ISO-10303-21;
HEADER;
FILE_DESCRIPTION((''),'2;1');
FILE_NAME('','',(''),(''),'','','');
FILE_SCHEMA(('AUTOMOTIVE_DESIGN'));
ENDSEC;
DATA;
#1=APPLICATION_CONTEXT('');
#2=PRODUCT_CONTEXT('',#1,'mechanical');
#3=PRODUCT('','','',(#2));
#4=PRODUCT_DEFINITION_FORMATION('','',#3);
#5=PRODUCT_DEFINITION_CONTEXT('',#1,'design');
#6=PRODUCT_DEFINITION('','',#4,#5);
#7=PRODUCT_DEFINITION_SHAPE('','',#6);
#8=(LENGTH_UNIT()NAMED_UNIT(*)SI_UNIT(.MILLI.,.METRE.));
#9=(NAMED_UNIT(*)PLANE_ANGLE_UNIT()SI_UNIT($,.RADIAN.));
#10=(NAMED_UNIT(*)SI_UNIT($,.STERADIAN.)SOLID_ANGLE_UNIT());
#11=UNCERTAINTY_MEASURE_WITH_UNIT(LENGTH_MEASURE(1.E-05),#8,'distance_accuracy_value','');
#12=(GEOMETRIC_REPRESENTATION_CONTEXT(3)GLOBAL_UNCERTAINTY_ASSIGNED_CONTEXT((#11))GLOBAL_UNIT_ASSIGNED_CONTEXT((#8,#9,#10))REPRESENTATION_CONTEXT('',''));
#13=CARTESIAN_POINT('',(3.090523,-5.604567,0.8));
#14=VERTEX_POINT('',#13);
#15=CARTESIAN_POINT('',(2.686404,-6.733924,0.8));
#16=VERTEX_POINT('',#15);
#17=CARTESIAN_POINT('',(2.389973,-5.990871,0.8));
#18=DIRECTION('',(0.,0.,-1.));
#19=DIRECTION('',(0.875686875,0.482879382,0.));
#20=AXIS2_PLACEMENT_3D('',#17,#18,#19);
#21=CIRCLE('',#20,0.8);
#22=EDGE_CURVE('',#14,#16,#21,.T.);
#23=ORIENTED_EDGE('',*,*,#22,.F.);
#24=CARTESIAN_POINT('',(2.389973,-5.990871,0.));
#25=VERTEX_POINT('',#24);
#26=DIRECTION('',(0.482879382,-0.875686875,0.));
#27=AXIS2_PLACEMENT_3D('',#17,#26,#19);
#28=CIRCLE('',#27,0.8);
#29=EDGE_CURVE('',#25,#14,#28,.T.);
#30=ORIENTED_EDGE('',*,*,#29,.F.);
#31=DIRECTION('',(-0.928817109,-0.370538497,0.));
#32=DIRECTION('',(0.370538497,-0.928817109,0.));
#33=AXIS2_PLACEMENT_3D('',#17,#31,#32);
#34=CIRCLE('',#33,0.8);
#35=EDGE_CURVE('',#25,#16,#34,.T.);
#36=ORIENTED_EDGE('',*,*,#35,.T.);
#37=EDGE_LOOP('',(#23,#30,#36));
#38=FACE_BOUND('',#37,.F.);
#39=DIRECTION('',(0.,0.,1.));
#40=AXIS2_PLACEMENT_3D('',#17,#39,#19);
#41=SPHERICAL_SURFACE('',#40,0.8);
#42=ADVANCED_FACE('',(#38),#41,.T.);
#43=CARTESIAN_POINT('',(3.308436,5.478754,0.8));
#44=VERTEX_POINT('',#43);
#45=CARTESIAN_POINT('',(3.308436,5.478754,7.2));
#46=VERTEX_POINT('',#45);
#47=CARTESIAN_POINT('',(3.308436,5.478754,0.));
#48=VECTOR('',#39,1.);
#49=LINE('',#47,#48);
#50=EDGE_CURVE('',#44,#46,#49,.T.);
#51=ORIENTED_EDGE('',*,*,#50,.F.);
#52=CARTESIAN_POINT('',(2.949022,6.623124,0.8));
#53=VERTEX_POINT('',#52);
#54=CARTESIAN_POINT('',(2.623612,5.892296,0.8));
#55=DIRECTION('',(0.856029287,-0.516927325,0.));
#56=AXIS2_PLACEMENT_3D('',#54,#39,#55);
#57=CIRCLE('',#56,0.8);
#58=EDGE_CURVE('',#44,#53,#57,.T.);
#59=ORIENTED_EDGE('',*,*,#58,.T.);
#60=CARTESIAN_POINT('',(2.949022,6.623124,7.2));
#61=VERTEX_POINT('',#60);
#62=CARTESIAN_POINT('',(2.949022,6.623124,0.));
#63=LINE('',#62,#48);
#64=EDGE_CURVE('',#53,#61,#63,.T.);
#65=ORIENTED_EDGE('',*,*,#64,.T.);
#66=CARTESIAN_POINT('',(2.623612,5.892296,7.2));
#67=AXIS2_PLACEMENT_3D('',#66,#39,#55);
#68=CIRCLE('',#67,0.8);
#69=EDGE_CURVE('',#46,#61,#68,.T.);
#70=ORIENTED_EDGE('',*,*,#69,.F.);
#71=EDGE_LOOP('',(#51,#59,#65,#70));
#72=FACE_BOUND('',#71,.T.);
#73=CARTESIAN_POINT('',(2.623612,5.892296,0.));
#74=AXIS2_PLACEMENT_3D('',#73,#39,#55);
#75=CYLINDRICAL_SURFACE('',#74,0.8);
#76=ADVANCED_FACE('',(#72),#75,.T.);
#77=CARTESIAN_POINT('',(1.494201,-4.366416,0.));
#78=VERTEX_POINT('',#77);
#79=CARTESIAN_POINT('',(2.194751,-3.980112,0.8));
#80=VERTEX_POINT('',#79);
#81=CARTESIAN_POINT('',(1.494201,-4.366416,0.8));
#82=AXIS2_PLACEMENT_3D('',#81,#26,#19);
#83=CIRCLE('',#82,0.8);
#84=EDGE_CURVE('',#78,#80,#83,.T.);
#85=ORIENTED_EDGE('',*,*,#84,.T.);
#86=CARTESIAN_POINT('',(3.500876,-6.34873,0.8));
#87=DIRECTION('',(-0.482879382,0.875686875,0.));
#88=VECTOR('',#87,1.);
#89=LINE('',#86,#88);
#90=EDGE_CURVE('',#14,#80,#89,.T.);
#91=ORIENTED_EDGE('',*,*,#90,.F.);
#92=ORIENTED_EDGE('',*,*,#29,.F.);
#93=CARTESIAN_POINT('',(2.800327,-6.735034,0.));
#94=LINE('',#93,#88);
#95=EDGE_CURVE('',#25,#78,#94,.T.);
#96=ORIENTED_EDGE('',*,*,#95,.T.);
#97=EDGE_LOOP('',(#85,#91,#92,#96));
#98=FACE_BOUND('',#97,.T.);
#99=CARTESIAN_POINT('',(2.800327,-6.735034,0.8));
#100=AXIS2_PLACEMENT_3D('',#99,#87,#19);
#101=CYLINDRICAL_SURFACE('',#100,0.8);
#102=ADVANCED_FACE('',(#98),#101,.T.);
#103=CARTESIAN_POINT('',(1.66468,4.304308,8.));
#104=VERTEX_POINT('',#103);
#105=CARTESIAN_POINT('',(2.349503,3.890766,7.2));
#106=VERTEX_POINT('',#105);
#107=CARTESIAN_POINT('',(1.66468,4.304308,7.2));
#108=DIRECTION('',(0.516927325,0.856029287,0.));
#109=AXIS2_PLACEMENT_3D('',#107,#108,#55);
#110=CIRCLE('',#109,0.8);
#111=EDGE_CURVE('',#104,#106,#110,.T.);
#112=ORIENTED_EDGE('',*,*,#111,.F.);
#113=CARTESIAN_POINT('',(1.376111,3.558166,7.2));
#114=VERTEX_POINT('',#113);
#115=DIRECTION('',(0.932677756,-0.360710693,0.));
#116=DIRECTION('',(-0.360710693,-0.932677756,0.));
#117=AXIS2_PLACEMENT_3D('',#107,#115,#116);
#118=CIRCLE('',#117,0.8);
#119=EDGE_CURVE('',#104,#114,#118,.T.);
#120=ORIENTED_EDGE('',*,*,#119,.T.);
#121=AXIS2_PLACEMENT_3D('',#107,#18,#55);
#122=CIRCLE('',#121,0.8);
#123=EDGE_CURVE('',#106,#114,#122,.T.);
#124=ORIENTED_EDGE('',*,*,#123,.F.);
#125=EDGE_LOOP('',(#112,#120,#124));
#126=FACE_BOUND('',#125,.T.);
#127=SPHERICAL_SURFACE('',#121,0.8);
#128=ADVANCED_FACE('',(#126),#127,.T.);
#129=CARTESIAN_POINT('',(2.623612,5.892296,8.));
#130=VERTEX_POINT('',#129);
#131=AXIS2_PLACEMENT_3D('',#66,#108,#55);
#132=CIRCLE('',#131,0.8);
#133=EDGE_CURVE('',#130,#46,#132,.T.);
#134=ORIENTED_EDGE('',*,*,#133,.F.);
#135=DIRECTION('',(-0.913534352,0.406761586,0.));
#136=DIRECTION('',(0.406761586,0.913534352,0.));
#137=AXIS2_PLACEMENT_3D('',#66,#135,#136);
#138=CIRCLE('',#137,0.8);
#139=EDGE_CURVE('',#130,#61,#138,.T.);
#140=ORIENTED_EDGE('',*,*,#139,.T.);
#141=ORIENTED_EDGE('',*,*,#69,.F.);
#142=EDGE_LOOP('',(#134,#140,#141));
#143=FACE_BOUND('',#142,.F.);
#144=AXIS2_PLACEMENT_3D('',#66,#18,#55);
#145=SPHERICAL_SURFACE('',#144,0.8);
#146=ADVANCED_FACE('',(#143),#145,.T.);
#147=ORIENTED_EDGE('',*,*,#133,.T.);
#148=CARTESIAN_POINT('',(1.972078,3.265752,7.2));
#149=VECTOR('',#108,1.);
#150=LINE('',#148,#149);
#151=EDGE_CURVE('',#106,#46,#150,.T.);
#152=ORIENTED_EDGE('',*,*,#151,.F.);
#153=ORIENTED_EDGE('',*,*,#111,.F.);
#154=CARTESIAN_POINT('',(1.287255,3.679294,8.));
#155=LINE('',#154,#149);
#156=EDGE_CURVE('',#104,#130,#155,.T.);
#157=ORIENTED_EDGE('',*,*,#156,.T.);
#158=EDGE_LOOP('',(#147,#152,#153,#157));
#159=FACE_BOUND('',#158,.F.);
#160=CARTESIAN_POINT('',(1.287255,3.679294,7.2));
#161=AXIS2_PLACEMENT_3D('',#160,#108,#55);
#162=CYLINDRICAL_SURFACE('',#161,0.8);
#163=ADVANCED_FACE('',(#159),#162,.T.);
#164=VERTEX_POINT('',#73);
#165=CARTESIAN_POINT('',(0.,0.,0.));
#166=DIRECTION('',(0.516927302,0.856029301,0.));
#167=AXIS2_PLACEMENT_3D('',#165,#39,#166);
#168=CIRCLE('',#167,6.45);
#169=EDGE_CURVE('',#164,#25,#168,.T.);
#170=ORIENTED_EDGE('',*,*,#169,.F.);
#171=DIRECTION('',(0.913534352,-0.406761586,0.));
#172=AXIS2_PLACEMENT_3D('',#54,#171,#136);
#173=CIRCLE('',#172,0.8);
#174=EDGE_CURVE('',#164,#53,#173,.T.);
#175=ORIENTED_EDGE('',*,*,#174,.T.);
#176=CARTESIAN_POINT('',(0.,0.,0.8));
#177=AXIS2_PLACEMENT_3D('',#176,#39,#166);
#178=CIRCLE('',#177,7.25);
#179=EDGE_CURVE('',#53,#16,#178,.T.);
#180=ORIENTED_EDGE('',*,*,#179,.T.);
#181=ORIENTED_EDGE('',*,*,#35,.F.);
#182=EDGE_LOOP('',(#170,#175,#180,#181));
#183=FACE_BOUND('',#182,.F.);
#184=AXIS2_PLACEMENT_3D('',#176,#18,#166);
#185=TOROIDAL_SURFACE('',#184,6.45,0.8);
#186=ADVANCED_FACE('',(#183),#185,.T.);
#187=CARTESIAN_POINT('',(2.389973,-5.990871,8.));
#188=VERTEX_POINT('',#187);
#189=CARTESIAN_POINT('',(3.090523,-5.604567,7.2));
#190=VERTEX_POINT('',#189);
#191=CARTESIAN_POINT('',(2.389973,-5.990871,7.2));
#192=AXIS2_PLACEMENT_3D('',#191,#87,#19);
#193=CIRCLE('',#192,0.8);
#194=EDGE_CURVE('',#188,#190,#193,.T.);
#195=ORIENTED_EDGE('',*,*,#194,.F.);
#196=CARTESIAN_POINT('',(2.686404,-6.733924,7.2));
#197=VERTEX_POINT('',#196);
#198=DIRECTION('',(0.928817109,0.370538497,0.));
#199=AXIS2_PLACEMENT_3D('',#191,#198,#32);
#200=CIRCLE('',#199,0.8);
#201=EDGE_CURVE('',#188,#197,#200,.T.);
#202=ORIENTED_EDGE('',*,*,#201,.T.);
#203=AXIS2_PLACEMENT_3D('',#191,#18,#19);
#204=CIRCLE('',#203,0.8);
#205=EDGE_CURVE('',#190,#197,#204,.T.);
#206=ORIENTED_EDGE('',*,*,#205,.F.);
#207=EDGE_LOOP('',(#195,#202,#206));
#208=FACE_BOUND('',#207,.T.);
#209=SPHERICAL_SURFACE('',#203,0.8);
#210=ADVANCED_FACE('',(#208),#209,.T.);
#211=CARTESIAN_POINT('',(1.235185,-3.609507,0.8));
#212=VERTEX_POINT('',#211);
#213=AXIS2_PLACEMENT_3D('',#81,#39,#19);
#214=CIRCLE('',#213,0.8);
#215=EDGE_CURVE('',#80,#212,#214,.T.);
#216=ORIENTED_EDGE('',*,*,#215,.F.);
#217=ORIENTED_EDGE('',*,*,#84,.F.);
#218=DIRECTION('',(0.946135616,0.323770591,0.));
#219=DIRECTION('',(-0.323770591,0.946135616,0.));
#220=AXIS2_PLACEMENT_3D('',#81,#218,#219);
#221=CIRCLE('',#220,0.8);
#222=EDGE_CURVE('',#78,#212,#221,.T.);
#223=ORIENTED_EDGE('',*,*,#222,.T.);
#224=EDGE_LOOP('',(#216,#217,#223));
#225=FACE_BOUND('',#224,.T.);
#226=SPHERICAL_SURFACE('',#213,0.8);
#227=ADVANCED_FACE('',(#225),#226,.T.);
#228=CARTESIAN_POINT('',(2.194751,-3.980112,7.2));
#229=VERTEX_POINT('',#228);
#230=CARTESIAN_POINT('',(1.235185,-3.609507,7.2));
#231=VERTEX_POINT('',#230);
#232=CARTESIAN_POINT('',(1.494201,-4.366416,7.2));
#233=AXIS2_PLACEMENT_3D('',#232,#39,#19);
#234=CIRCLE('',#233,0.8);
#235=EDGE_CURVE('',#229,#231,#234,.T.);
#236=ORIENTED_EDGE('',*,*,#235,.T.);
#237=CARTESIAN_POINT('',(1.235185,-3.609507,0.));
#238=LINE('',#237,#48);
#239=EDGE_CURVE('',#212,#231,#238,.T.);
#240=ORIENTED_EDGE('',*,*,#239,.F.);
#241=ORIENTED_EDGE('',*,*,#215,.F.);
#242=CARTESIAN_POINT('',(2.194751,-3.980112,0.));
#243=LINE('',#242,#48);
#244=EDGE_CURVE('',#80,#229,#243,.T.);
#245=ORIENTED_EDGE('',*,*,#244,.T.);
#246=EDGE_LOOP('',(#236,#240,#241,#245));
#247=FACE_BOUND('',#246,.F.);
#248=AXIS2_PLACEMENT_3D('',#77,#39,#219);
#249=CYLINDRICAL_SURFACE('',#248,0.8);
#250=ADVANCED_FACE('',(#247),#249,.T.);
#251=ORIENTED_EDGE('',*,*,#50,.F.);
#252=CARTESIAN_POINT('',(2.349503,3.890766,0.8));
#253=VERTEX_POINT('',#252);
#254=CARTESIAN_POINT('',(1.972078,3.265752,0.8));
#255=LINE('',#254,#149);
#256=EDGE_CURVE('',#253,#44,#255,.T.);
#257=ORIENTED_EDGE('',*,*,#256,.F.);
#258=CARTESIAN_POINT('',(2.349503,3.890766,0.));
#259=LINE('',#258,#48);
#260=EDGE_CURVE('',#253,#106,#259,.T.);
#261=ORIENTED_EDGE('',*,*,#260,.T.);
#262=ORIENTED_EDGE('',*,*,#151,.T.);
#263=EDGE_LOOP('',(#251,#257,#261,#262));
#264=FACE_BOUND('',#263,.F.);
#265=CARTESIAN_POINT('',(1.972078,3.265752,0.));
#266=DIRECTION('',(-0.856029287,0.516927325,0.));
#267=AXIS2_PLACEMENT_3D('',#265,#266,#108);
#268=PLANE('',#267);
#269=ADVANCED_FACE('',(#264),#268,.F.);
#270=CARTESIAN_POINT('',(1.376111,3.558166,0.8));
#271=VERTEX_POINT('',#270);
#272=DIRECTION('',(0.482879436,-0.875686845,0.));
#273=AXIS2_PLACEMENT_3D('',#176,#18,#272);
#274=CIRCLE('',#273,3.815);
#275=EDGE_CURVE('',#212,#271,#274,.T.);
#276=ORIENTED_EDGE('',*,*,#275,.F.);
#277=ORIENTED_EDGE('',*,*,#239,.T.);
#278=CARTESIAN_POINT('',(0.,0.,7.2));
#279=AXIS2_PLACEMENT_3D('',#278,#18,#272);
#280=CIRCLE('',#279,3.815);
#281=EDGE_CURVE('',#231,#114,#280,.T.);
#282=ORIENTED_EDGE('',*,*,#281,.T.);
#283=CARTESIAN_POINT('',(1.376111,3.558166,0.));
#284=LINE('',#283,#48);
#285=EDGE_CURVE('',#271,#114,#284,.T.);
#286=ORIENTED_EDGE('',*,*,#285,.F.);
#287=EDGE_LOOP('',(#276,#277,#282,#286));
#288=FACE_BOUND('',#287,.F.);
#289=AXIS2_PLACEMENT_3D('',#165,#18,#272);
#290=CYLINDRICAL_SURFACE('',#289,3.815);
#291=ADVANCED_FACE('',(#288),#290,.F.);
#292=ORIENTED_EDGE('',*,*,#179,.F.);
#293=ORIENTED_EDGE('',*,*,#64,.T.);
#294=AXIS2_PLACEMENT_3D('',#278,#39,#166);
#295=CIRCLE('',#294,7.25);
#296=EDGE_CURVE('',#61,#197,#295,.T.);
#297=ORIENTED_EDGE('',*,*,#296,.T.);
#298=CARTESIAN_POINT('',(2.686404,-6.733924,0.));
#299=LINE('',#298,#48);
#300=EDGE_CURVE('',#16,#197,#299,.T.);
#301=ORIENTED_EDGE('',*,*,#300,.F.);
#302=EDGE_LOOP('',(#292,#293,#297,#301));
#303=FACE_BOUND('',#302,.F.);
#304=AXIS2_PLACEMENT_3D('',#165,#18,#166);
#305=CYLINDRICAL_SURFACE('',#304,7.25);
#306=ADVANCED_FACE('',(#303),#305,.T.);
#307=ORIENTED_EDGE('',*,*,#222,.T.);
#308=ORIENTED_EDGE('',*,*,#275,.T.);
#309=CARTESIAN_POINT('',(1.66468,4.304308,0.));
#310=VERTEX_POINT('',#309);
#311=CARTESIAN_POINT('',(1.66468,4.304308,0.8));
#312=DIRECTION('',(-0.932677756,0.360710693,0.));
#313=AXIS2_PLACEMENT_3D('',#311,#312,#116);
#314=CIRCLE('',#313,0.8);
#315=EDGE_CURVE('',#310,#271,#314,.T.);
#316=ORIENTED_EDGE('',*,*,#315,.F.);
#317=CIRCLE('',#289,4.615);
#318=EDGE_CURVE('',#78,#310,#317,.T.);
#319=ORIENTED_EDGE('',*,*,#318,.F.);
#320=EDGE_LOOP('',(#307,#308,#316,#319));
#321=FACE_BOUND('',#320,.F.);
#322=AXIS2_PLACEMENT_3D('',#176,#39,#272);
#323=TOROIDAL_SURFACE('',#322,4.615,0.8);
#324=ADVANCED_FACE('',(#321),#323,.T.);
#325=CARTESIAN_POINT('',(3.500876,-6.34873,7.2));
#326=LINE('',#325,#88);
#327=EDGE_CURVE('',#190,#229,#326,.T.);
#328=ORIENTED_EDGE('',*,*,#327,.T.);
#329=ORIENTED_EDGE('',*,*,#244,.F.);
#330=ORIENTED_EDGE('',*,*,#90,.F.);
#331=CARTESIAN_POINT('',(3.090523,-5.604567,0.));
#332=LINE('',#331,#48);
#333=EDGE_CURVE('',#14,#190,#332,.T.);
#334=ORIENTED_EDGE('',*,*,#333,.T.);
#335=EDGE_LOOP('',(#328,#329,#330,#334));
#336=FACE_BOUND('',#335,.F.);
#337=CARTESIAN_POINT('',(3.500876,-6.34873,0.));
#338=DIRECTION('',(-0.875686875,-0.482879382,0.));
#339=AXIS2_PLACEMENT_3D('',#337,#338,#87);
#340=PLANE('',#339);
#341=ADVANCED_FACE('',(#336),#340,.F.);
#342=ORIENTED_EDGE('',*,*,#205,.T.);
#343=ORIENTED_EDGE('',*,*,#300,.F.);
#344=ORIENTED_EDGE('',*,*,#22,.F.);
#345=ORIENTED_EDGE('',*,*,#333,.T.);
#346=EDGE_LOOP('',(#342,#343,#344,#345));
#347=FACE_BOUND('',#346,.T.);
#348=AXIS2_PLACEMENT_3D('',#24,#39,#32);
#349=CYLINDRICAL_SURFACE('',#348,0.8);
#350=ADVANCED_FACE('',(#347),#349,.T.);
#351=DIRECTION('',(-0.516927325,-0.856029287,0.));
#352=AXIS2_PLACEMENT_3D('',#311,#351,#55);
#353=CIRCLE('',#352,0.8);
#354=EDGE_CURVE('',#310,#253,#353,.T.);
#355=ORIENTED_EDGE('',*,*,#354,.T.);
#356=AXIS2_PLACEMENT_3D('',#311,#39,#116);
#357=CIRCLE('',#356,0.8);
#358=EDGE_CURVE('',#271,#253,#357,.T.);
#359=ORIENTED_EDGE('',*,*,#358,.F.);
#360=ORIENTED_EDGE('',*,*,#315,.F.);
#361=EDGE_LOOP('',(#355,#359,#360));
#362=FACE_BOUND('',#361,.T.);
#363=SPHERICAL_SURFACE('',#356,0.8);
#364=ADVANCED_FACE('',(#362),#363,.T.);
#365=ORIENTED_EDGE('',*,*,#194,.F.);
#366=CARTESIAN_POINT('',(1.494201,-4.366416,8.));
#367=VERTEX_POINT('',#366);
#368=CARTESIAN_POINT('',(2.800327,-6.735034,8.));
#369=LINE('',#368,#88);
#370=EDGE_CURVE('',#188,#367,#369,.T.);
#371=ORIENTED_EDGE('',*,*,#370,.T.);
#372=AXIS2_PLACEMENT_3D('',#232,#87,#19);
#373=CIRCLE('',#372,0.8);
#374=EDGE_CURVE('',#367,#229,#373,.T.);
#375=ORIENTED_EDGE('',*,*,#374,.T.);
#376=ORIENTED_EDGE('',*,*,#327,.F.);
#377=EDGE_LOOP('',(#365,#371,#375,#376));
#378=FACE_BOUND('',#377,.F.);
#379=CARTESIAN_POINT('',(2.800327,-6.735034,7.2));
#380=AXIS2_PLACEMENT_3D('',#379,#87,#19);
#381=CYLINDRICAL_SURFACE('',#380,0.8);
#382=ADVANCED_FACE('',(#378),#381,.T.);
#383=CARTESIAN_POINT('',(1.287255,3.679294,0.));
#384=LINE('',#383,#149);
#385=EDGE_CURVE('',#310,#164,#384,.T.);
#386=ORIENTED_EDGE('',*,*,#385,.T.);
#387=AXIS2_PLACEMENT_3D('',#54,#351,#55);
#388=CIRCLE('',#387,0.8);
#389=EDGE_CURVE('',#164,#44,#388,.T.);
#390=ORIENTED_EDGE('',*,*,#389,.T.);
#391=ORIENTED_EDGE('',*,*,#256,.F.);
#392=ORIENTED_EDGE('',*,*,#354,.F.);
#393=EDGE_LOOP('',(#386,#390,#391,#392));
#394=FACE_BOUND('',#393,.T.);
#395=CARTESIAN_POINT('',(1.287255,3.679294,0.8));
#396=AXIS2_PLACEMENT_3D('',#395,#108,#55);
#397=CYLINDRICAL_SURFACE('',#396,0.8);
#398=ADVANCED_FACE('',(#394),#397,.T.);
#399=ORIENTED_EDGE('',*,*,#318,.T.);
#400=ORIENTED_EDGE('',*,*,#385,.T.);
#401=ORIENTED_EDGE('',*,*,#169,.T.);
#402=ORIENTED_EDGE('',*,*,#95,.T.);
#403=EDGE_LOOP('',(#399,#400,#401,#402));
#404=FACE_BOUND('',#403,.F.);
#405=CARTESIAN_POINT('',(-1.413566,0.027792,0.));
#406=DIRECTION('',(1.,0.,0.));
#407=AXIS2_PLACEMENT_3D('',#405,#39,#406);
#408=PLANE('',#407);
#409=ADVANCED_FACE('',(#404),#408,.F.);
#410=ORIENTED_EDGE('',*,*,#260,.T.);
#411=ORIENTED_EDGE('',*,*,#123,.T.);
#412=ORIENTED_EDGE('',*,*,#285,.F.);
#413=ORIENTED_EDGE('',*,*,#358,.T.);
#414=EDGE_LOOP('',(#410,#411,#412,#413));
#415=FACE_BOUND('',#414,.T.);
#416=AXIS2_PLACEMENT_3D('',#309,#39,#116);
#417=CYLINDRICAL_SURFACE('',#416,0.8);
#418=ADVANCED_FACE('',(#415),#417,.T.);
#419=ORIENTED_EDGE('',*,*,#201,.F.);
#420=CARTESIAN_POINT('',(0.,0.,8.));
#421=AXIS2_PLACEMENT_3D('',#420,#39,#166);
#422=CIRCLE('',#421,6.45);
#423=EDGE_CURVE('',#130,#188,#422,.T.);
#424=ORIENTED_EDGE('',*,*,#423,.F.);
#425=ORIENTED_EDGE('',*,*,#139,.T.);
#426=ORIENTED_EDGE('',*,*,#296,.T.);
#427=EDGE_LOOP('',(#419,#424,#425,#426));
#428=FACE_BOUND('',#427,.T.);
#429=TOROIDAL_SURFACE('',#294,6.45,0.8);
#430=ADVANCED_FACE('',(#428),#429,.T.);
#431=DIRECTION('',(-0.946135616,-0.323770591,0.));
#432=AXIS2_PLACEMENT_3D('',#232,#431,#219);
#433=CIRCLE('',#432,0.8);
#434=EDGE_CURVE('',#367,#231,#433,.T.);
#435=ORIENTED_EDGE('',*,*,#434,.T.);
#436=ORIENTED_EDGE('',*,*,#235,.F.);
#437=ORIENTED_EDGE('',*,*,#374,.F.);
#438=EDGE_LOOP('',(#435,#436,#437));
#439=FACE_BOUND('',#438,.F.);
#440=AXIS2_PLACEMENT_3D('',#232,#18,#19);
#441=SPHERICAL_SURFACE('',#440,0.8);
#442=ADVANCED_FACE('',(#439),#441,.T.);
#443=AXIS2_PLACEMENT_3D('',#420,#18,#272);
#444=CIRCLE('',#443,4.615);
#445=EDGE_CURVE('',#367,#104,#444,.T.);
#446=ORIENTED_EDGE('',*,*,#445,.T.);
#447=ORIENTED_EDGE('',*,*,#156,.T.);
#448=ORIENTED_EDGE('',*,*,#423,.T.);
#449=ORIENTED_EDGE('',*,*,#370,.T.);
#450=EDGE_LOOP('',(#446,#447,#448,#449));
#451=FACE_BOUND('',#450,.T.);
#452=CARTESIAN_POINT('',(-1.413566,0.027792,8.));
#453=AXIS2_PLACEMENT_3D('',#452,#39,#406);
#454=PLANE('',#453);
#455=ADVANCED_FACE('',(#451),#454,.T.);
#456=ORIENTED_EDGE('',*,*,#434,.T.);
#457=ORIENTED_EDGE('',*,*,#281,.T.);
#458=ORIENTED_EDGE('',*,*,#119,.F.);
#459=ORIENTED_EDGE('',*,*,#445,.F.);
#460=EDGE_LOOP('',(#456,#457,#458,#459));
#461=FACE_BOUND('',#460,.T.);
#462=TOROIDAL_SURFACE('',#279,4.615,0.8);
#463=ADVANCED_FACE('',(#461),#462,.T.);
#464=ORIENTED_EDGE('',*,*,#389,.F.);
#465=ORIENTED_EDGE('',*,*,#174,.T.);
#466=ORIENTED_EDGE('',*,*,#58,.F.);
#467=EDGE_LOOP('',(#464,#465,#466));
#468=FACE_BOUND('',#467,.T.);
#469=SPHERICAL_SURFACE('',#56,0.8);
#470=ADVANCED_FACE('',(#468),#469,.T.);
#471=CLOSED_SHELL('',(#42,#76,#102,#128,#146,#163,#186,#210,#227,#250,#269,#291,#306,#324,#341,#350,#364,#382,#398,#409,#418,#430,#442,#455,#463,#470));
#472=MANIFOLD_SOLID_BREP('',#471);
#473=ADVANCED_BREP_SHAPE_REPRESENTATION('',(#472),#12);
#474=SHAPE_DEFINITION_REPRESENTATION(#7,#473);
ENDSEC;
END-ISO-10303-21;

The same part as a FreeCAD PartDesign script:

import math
import FreeCAD as App
import Part
import Sketcher
from FreeCAD import Vector

doc = App.newDocument("Part")
body = doc.addObject("PartDesign::Body", "Body")

sketch1 = body.newObject("Sketcher::SketchObject", "Sketch")
sketch1.AttachmentSupport = (doc.getObject("XY_Plane"), [""])
sketch1.MapMode = "FlatFace"
sketch1.addGeometry([
    Part.ArcOfCircle(Part.Circle(Vector(0, 0, 0), Vector(0, 0, 1), 3.815), math.radians(58.873627), math.radians(298.873632)),
    Part.LineSegment(Vector(1.972078, 3.265752, 0), Vector(3.747723, 6.206212, 0)),
    Part.ArcOfCircle(Part.Circle(Vector(0, 0, 0), Vector(0, 0, 1), 7.25), math.radians(58.873634), math.radians(298.873632)),
    Part.LineSegment(Vector(3.500876, -6.34873, 0), Vector(1.842185, -3.340745, 0)),
], False)
sketch1.addConstraint([
    Sketcher.Constraint("Coincident", 0, 1, 1, 1),
    Sketcher.Constraint("Coincident", 1, 2, 2, 1),
    Sketcher.Constraint("Coincident", 2, 2, 3, 1),
    Sketcher.Constraint("Coincident", 3, 2, 0, 2),
    Sketcher.Constraint("Coincident", 0, 3, -1, 1),
    Sketcher.Constraint("Coincident", 2, 3, -1, 1),
    Sketcher.Constraint("Radius", 2, 7.25),
    Sketcher.Constraint("Radius", 0, 3.815),
    Sketcher.Constraint("DistanceX", -1, 1, 0, 1, 1.972078),
    Sketcher.Constraint("DistanceY", 2, 2, -1, 1, 6.34873),
    Sketcher.Constraint("DistanceY", 0, 1, 1, 2, 2.94046),
    Sketcher.Constraint("DistanceX", 3, 2, 2, 2, 1.658691),
])
pad1 = body.newObject("PartDesign::Pad", "Pad")
pad1.Profile = sketch1
pad1.Length = 8
doc.recompute()

fillet = body.newObject("PartDesign::Fillet", "Fillet")
fillet.Base = (pad1, ["Edge1"])
fillet.UseAllEdges = True
fillet.Radius = 0.8

doc.recompute()
